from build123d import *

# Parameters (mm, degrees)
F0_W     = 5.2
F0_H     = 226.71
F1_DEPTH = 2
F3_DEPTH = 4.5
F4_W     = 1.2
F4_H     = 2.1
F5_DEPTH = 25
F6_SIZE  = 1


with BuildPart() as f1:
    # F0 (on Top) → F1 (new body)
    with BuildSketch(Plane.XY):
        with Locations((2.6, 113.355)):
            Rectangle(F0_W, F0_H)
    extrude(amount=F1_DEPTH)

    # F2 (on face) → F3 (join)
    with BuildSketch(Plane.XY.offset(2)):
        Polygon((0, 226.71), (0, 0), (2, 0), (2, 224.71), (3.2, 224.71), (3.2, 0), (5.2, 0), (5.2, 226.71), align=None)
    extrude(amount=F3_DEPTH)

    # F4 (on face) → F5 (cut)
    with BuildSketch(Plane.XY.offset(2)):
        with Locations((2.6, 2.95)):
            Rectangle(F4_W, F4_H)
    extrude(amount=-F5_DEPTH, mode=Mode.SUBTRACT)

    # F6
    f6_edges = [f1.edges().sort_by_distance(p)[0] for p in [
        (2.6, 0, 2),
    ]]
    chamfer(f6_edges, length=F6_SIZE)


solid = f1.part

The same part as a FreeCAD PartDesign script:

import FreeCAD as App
import Part
import Sketcher


def edges_at(feature, points):
    """Names of the edges that pass closest to the given points."""
    edges = feature.Shape.Edges
    near = lambda p: min(range(len(edges)), key=lambda i: edges[i].distToShape(Part.Vertex(*p))[0])
    return sorted({f"Edge{near(p) + 1}" for p in points})


def add_polygon(sketch, points):
    """Adds a closed chain of lines whose ends are joined by coincident constraints."""
    first, n = sketch.GeometryCount, len(points)
    for a, b in zip(points, points[1:] + points[:1]):
        sketch.addGeometry(Part.LineSegment(App.Vector(*a, 0), App.Vector(*b, 0)), False)
    for i in range(n):
        sketch.addConstraint(Sketcher.Constraint("Coincident", first + i, 2, first + (i + 1) % n, 1))

doc = App.newDocument("Part")
body = doc.addObject("PartDesign::Body", "Body")

# Sketch on XY plane
sketch1 = body.newObject("Sketcher::SketchObject", "Sketch")
sketch1.AttachmentSupport = (doc.getObject("XY_Plane"), [""])
sketch1.MapMode = "FlatFace"
add_polygon(sketch1, [(0, 227), (0, 0), (5, 0), (5, 227)])  # lines 0-3
sketch1.addConstraint([
    Sketcher.Constraint("Vertical", 0),
    Sketcher.Constraint("Horizontal", 1),
    Sketcher.Constraint("Vertical", 2),
    Sketcher.Constraint("Horizontal", 3),
    Sketcher.Constraint("Coincident", 0, 2, -1, 1),
    Sketcher.Constraint("DistanceX", 1, 1, 1, 2, 5.2),
    Sketcher.Constraint("DistanceY", 0, 2, 0, 1, 226.71),
])
pad1 = body.newObject("PartDesign::Pad", "Pad")
pad1.Profile = sketch1
pad1.Length = 2

# Sketch on XY plane
sketch2 = body.newObject("Sketcher::SketchObject", "Sketch001")
sketch2.AttachmentSupport = (doc.getObject("XY_Plane"), [""])
sketch2.MapMode = "FlatFace"
sketch2.AttachmentOffset = App.Placement(App.Vector(0, 0, 2), App.Rotation())
add_polygon(sketch2, [(0, 226.7), (0, 0), (2, 0), (2, 224.7), (3.2, 224.7), (3.2, 0), (5.2, 0), (5.2, 226.7)])  # lines 0-7
sketch2.addConstraint([
    Sketcher.Constraint("Vertical", 0),
    Sketcher.Constraint("Horizontal", 1),
    Sketcher.Constraint("Vertical", 2),
    Sketcher.Constraint("Horizontal", 3),
    Sketcher.Constraint("Vertical", 4),
    Sketcher.Constraint("Horizontal", 5),
    Sketcher.Constraint("Vertical", 6),
    Sketcher.Constraint("Horizontal", 7),
    Sketcher.Constraint("Coincident", 0, 2, -1, 1),
    Sketcher.Constraint("PointOnObject", 4, 2, -1),
    Sketcher.Constraint("Equal", 1, 5),
    Sketcher.Constraint("DistanceX", 1, 1, 1, 2, 2.0),
    Sketcher.Constraint("DistanceX", 3, 1, 3, 2, 1.2),
    Sketcher.Constraint("DistanceY", 3, 2, 6, 2, 2.0),
    Sketcher.Constraint("DistanceY", 0, 2, 0, 1, 226.71),
])
pad2 = body.newObject("PartDesign::Pad", "Pad001")
pad2.Profile = sketch2
pad2.Length = 4.5

# Sketch on XY plane
sketch3 = body.newObject("Sketcher::SketchObject", "Sketch002")
sketch3.AttachmentSupport = (doc.getObject("XY_Plane"), [""])
sketch3.MapMode = "FlatFace"
sketch3.AttachmentOffset = App.Placement(App.Vector(0, 0, 2), App.Rotation())
add_polygon(sketch3, [(2, 4), (2, 1.9), (3.2, 1.9), (3.2, 4)])  # lines 0-3
sketch3.addConstraint([
    Sketcher.Constraint("Vertical", 0),
    Sketcher.Constraint("Horizontal", 1),
    Sketcher.Constraint("Vertical", 2),
    Sketcher.Constraint("Horizontal", 3),
    Sketcher.Constraint("DistanceX", 1, 1, 1, 2, 1.2),
    Sketcher.Constraint("DistanceY", 0, 2, 0, 1, 2.1),
    Sketcher.Constraint("DistanceX", -1, 1, 0, 2, 2.0),
    Sketcher.Constraint("DistanceY", -1, 1, 2, 2, 4.0),
])
pocket1 = body.newObject("PartDesign::Pocket", "Pocket")
pocket1.Profile = sketch3
pocket1.Length = 25
doc.recompute()

chamfer = body.newObject("PartDesign::Chamfer", "Chamfer")
chamfer.Base = (pocket1, edges_at(pocket1, [(2.6, 0, 2)]))
chamfer.Size = 1

doc.recompute()
